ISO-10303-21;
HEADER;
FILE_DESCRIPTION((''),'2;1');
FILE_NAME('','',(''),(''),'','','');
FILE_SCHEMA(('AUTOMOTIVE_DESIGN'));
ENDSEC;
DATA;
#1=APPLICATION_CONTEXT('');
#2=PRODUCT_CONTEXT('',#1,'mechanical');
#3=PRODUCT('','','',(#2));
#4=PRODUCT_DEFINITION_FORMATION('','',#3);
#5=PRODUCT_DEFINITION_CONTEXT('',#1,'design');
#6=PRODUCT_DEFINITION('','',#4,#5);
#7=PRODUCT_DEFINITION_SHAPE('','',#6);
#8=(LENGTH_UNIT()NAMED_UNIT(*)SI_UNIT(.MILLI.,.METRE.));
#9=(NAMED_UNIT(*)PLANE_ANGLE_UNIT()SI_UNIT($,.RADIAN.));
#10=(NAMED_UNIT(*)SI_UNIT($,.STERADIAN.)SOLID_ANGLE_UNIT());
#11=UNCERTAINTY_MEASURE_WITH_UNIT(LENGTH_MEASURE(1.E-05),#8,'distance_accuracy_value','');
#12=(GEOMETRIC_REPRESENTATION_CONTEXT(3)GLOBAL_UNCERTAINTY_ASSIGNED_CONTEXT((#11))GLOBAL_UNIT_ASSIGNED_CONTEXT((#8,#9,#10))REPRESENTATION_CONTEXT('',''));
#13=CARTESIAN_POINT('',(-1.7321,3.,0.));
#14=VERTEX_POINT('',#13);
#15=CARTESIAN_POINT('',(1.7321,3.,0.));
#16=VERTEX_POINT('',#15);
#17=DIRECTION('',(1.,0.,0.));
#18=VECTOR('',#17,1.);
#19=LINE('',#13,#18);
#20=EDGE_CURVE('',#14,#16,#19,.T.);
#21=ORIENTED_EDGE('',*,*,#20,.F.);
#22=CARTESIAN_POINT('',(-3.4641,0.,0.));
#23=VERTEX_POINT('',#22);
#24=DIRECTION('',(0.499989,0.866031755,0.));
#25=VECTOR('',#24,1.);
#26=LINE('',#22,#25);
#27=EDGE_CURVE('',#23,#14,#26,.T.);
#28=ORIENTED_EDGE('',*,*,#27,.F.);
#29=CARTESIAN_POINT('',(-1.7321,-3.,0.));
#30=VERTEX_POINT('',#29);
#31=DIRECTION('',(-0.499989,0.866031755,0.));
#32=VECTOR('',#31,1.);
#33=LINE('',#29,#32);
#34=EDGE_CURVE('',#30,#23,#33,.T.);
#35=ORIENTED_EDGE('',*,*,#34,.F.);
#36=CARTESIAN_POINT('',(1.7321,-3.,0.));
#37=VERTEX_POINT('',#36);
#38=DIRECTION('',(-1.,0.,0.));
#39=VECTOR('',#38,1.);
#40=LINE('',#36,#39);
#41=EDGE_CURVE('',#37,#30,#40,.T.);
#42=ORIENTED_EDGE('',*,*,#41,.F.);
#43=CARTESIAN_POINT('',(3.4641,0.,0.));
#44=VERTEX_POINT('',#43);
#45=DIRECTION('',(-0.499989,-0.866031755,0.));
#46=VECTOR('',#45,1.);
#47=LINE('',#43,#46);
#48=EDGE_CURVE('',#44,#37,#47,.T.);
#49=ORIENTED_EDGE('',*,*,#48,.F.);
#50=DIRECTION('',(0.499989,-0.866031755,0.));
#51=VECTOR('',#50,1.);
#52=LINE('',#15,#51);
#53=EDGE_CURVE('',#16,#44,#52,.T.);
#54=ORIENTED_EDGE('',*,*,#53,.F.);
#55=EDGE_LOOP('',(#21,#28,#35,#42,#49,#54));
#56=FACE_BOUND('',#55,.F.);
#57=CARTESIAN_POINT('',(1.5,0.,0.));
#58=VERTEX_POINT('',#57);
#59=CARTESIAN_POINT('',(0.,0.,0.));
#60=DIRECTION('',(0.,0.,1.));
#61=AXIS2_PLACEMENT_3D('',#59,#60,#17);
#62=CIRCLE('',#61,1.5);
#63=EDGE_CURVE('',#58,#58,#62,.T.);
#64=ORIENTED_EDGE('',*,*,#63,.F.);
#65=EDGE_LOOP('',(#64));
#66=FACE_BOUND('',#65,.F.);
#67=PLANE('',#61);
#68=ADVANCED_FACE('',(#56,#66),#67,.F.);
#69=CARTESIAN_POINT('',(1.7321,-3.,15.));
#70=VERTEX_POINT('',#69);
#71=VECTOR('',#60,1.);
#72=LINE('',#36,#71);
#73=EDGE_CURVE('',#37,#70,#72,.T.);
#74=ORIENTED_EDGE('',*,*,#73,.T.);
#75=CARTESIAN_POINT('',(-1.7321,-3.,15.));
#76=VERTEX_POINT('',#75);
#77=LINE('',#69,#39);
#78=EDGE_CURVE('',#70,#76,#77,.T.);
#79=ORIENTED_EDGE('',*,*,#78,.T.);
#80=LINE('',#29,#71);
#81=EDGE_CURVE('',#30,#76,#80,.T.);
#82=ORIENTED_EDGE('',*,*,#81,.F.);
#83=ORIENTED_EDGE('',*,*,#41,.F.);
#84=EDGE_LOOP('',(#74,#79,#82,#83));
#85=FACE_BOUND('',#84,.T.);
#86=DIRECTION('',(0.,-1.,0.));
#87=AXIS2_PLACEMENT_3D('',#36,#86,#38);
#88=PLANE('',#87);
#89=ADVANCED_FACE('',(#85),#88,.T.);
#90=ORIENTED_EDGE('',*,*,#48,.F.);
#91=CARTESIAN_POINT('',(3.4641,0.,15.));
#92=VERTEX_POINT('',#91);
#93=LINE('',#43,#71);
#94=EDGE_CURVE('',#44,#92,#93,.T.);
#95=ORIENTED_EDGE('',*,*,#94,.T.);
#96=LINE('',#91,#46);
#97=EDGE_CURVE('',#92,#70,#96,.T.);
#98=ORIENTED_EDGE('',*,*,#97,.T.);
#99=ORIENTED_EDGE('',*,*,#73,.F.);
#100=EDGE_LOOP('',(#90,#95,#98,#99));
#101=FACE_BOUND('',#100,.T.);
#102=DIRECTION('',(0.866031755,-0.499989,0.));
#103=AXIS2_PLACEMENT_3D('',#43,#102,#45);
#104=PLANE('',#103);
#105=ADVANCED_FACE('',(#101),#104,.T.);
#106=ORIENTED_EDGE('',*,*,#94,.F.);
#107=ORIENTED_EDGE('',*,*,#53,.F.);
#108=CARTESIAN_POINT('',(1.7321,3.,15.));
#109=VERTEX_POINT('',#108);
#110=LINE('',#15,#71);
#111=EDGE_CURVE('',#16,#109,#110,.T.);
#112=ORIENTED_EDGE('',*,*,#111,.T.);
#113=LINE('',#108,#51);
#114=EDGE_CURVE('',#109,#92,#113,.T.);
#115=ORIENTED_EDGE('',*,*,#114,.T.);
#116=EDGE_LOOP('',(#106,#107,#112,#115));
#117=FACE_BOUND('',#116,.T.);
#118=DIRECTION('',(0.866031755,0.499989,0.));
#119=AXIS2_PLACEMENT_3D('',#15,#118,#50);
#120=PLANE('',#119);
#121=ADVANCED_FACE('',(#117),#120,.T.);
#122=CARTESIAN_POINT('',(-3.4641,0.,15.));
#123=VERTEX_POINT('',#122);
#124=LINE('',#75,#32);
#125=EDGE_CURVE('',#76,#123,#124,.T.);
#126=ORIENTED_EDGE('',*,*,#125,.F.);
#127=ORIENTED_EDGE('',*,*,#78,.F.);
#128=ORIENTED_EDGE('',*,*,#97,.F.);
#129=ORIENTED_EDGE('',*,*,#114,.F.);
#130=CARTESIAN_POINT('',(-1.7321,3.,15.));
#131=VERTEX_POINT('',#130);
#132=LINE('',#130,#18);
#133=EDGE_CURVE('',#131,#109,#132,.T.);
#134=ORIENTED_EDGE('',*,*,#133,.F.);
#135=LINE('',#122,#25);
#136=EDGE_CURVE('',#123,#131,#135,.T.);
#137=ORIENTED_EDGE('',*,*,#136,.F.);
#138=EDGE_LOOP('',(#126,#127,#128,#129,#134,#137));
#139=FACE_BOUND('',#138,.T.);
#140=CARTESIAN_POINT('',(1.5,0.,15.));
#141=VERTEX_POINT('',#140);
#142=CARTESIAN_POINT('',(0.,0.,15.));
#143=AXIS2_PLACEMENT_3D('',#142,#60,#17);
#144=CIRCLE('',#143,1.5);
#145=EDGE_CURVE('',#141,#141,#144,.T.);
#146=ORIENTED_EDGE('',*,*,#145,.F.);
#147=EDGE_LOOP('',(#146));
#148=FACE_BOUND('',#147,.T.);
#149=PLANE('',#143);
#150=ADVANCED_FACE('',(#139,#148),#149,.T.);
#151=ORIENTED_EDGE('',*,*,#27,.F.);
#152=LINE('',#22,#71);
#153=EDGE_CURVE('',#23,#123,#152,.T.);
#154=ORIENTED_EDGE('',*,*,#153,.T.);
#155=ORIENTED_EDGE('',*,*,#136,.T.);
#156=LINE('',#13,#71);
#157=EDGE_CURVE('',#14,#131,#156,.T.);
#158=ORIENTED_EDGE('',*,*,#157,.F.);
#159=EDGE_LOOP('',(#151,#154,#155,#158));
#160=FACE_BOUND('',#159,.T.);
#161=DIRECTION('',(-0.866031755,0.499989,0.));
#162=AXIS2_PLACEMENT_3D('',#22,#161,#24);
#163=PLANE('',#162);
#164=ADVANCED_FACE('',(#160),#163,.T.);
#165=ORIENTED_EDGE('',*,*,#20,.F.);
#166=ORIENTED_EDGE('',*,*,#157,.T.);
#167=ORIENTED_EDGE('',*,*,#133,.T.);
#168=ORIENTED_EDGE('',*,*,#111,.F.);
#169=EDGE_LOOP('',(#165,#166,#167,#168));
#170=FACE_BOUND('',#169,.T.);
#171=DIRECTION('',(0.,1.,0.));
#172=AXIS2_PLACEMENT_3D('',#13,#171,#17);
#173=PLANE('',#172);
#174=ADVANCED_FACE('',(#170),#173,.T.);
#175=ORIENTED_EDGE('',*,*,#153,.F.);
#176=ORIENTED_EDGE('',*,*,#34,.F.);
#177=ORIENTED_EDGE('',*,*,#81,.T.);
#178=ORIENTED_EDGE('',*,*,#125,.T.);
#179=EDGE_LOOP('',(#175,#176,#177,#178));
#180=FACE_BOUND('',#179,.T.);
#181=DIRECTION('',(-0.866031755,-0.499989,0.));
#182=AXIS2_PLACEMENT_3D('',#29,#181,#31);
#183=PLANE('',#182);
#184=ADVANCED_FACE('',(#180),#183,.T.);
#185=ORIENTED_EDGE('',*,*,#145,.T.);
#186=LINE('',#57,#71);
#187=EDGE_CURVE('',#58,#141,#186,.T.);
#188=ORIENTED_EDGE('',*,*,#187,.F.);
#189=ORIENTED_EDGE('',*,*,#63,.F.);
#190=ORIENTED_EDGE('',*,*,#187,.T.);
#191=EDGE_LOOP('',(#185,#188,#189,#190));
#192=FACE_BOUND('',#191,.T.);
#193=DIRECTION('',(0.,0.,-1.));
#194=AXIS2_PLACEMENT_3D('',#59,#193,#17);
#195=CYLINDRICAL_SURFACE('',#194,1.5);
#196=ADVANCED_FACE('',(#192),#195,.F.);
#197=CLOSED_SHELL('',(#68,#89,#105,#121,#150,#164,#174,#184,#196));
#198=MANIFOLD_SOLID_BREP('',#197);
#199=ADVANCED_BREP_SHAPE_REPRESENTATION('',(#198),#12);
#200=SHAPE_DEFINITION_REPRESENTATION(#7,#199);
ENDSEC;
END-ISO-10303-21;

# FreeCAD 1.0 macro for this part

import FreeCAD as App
import Part
import Sketcher
Q = App.Units.Quantity

doc = App.newDocument("Part")
body = doc.addObject("PartDesign::Body", "Body")

# Sketch on XY plane
sketch1 = doc.addObject("Sketcher::SketchObject", "Sketch")
body.addObject(sketch1)
sketch1.AttachmentSupport = (doc.XY_Plane, [""])
sketch1.MapMode = "FlatFace"
sketch1.addGeometry([
    Part.LineSegment(App.Vector(1.7321, 3, 0), App.Vector(-1.7321, 3, 0)),  # 0
    Part.LineSegment(App.Vector(-1.7321, 3, 0), App.Vector(-3.4641, 0, 0)),  # 1
    Part.LineSegment(App.Vector(-3.4641, 0, 0), App.Vector(-1.7321, -3, 0)),  # 2
    Part.LineSegment(App.Vector(-1.7321, -3, 0), App.Vector(1.7321, -3, 0)),  # 3
    Part.LineSegment(App.Vector(1.7321, -3, 0), App.Vector(3.4641, 0, 0)),  # 4
    Part.LineSegment(App.Vector(3.4641, 0, 0), App.Vector(1.7321, 3, 0)),  # 5
    Part.Circle(App.Vector(0, 0, 0), App.Vector(0, 0, 1), 1.5),  # 6
], False)
sketch1.addConstraint([
    Sketcher.Constraint("Coincident", 0, 2, 1, 1),
    Sketcher.Constraint("Coincident", 1, 2, 2, 1),
    Sketcher.Constraint("Coincident", 2, 2, 3, 1),
    Sketcher.Constraint("Coincident", 3, 2, 4, 1),
    Sketcher.Constraint("Coincident", 4, 2, 5, 1),
    Sketcher.Constraint("Coincident", 5, 2, 0, 1),
    Sketcher.Constraint("Horizontal", 0),
    Sketcher.Constraint("Horizontal", 3),
    Sketcher.Constraint("Coincident", 6, 3, -1, 1),
    Sketcher.Constraint("Symmetric", 0, 2, 3, 2, -1, 1),
    Sketcher.Constraint("Symmetric", 1, 2, 4, 2, -1, 1),
    Sketcher.Constraint("PointOnObject", 1, 2, -1),
    Sketcher.Constraint("Parallel", 2, 5),
    Sketcher.Constraint("Vertical", 0, 2, 2, 2),
    Sketcher.Constraint("Diameter", 6, 3.0),
    Sketcher.Constraint("DistanceY", -1, 1, 0, 2, 3.0),
    Sketcher.Constraint("Angle", 1, Q("-119.9993 deg")),
    Sketcher.Constraint("DistanceX", 0, 2, 0, 1, 3.4642),
])
pad1 = doc.addObject("PartDesign::Pad", "Pad")
body.addObject(pad1)
pad1.Profile = sketch1
pad1.Length = 15

doc.recompute()
